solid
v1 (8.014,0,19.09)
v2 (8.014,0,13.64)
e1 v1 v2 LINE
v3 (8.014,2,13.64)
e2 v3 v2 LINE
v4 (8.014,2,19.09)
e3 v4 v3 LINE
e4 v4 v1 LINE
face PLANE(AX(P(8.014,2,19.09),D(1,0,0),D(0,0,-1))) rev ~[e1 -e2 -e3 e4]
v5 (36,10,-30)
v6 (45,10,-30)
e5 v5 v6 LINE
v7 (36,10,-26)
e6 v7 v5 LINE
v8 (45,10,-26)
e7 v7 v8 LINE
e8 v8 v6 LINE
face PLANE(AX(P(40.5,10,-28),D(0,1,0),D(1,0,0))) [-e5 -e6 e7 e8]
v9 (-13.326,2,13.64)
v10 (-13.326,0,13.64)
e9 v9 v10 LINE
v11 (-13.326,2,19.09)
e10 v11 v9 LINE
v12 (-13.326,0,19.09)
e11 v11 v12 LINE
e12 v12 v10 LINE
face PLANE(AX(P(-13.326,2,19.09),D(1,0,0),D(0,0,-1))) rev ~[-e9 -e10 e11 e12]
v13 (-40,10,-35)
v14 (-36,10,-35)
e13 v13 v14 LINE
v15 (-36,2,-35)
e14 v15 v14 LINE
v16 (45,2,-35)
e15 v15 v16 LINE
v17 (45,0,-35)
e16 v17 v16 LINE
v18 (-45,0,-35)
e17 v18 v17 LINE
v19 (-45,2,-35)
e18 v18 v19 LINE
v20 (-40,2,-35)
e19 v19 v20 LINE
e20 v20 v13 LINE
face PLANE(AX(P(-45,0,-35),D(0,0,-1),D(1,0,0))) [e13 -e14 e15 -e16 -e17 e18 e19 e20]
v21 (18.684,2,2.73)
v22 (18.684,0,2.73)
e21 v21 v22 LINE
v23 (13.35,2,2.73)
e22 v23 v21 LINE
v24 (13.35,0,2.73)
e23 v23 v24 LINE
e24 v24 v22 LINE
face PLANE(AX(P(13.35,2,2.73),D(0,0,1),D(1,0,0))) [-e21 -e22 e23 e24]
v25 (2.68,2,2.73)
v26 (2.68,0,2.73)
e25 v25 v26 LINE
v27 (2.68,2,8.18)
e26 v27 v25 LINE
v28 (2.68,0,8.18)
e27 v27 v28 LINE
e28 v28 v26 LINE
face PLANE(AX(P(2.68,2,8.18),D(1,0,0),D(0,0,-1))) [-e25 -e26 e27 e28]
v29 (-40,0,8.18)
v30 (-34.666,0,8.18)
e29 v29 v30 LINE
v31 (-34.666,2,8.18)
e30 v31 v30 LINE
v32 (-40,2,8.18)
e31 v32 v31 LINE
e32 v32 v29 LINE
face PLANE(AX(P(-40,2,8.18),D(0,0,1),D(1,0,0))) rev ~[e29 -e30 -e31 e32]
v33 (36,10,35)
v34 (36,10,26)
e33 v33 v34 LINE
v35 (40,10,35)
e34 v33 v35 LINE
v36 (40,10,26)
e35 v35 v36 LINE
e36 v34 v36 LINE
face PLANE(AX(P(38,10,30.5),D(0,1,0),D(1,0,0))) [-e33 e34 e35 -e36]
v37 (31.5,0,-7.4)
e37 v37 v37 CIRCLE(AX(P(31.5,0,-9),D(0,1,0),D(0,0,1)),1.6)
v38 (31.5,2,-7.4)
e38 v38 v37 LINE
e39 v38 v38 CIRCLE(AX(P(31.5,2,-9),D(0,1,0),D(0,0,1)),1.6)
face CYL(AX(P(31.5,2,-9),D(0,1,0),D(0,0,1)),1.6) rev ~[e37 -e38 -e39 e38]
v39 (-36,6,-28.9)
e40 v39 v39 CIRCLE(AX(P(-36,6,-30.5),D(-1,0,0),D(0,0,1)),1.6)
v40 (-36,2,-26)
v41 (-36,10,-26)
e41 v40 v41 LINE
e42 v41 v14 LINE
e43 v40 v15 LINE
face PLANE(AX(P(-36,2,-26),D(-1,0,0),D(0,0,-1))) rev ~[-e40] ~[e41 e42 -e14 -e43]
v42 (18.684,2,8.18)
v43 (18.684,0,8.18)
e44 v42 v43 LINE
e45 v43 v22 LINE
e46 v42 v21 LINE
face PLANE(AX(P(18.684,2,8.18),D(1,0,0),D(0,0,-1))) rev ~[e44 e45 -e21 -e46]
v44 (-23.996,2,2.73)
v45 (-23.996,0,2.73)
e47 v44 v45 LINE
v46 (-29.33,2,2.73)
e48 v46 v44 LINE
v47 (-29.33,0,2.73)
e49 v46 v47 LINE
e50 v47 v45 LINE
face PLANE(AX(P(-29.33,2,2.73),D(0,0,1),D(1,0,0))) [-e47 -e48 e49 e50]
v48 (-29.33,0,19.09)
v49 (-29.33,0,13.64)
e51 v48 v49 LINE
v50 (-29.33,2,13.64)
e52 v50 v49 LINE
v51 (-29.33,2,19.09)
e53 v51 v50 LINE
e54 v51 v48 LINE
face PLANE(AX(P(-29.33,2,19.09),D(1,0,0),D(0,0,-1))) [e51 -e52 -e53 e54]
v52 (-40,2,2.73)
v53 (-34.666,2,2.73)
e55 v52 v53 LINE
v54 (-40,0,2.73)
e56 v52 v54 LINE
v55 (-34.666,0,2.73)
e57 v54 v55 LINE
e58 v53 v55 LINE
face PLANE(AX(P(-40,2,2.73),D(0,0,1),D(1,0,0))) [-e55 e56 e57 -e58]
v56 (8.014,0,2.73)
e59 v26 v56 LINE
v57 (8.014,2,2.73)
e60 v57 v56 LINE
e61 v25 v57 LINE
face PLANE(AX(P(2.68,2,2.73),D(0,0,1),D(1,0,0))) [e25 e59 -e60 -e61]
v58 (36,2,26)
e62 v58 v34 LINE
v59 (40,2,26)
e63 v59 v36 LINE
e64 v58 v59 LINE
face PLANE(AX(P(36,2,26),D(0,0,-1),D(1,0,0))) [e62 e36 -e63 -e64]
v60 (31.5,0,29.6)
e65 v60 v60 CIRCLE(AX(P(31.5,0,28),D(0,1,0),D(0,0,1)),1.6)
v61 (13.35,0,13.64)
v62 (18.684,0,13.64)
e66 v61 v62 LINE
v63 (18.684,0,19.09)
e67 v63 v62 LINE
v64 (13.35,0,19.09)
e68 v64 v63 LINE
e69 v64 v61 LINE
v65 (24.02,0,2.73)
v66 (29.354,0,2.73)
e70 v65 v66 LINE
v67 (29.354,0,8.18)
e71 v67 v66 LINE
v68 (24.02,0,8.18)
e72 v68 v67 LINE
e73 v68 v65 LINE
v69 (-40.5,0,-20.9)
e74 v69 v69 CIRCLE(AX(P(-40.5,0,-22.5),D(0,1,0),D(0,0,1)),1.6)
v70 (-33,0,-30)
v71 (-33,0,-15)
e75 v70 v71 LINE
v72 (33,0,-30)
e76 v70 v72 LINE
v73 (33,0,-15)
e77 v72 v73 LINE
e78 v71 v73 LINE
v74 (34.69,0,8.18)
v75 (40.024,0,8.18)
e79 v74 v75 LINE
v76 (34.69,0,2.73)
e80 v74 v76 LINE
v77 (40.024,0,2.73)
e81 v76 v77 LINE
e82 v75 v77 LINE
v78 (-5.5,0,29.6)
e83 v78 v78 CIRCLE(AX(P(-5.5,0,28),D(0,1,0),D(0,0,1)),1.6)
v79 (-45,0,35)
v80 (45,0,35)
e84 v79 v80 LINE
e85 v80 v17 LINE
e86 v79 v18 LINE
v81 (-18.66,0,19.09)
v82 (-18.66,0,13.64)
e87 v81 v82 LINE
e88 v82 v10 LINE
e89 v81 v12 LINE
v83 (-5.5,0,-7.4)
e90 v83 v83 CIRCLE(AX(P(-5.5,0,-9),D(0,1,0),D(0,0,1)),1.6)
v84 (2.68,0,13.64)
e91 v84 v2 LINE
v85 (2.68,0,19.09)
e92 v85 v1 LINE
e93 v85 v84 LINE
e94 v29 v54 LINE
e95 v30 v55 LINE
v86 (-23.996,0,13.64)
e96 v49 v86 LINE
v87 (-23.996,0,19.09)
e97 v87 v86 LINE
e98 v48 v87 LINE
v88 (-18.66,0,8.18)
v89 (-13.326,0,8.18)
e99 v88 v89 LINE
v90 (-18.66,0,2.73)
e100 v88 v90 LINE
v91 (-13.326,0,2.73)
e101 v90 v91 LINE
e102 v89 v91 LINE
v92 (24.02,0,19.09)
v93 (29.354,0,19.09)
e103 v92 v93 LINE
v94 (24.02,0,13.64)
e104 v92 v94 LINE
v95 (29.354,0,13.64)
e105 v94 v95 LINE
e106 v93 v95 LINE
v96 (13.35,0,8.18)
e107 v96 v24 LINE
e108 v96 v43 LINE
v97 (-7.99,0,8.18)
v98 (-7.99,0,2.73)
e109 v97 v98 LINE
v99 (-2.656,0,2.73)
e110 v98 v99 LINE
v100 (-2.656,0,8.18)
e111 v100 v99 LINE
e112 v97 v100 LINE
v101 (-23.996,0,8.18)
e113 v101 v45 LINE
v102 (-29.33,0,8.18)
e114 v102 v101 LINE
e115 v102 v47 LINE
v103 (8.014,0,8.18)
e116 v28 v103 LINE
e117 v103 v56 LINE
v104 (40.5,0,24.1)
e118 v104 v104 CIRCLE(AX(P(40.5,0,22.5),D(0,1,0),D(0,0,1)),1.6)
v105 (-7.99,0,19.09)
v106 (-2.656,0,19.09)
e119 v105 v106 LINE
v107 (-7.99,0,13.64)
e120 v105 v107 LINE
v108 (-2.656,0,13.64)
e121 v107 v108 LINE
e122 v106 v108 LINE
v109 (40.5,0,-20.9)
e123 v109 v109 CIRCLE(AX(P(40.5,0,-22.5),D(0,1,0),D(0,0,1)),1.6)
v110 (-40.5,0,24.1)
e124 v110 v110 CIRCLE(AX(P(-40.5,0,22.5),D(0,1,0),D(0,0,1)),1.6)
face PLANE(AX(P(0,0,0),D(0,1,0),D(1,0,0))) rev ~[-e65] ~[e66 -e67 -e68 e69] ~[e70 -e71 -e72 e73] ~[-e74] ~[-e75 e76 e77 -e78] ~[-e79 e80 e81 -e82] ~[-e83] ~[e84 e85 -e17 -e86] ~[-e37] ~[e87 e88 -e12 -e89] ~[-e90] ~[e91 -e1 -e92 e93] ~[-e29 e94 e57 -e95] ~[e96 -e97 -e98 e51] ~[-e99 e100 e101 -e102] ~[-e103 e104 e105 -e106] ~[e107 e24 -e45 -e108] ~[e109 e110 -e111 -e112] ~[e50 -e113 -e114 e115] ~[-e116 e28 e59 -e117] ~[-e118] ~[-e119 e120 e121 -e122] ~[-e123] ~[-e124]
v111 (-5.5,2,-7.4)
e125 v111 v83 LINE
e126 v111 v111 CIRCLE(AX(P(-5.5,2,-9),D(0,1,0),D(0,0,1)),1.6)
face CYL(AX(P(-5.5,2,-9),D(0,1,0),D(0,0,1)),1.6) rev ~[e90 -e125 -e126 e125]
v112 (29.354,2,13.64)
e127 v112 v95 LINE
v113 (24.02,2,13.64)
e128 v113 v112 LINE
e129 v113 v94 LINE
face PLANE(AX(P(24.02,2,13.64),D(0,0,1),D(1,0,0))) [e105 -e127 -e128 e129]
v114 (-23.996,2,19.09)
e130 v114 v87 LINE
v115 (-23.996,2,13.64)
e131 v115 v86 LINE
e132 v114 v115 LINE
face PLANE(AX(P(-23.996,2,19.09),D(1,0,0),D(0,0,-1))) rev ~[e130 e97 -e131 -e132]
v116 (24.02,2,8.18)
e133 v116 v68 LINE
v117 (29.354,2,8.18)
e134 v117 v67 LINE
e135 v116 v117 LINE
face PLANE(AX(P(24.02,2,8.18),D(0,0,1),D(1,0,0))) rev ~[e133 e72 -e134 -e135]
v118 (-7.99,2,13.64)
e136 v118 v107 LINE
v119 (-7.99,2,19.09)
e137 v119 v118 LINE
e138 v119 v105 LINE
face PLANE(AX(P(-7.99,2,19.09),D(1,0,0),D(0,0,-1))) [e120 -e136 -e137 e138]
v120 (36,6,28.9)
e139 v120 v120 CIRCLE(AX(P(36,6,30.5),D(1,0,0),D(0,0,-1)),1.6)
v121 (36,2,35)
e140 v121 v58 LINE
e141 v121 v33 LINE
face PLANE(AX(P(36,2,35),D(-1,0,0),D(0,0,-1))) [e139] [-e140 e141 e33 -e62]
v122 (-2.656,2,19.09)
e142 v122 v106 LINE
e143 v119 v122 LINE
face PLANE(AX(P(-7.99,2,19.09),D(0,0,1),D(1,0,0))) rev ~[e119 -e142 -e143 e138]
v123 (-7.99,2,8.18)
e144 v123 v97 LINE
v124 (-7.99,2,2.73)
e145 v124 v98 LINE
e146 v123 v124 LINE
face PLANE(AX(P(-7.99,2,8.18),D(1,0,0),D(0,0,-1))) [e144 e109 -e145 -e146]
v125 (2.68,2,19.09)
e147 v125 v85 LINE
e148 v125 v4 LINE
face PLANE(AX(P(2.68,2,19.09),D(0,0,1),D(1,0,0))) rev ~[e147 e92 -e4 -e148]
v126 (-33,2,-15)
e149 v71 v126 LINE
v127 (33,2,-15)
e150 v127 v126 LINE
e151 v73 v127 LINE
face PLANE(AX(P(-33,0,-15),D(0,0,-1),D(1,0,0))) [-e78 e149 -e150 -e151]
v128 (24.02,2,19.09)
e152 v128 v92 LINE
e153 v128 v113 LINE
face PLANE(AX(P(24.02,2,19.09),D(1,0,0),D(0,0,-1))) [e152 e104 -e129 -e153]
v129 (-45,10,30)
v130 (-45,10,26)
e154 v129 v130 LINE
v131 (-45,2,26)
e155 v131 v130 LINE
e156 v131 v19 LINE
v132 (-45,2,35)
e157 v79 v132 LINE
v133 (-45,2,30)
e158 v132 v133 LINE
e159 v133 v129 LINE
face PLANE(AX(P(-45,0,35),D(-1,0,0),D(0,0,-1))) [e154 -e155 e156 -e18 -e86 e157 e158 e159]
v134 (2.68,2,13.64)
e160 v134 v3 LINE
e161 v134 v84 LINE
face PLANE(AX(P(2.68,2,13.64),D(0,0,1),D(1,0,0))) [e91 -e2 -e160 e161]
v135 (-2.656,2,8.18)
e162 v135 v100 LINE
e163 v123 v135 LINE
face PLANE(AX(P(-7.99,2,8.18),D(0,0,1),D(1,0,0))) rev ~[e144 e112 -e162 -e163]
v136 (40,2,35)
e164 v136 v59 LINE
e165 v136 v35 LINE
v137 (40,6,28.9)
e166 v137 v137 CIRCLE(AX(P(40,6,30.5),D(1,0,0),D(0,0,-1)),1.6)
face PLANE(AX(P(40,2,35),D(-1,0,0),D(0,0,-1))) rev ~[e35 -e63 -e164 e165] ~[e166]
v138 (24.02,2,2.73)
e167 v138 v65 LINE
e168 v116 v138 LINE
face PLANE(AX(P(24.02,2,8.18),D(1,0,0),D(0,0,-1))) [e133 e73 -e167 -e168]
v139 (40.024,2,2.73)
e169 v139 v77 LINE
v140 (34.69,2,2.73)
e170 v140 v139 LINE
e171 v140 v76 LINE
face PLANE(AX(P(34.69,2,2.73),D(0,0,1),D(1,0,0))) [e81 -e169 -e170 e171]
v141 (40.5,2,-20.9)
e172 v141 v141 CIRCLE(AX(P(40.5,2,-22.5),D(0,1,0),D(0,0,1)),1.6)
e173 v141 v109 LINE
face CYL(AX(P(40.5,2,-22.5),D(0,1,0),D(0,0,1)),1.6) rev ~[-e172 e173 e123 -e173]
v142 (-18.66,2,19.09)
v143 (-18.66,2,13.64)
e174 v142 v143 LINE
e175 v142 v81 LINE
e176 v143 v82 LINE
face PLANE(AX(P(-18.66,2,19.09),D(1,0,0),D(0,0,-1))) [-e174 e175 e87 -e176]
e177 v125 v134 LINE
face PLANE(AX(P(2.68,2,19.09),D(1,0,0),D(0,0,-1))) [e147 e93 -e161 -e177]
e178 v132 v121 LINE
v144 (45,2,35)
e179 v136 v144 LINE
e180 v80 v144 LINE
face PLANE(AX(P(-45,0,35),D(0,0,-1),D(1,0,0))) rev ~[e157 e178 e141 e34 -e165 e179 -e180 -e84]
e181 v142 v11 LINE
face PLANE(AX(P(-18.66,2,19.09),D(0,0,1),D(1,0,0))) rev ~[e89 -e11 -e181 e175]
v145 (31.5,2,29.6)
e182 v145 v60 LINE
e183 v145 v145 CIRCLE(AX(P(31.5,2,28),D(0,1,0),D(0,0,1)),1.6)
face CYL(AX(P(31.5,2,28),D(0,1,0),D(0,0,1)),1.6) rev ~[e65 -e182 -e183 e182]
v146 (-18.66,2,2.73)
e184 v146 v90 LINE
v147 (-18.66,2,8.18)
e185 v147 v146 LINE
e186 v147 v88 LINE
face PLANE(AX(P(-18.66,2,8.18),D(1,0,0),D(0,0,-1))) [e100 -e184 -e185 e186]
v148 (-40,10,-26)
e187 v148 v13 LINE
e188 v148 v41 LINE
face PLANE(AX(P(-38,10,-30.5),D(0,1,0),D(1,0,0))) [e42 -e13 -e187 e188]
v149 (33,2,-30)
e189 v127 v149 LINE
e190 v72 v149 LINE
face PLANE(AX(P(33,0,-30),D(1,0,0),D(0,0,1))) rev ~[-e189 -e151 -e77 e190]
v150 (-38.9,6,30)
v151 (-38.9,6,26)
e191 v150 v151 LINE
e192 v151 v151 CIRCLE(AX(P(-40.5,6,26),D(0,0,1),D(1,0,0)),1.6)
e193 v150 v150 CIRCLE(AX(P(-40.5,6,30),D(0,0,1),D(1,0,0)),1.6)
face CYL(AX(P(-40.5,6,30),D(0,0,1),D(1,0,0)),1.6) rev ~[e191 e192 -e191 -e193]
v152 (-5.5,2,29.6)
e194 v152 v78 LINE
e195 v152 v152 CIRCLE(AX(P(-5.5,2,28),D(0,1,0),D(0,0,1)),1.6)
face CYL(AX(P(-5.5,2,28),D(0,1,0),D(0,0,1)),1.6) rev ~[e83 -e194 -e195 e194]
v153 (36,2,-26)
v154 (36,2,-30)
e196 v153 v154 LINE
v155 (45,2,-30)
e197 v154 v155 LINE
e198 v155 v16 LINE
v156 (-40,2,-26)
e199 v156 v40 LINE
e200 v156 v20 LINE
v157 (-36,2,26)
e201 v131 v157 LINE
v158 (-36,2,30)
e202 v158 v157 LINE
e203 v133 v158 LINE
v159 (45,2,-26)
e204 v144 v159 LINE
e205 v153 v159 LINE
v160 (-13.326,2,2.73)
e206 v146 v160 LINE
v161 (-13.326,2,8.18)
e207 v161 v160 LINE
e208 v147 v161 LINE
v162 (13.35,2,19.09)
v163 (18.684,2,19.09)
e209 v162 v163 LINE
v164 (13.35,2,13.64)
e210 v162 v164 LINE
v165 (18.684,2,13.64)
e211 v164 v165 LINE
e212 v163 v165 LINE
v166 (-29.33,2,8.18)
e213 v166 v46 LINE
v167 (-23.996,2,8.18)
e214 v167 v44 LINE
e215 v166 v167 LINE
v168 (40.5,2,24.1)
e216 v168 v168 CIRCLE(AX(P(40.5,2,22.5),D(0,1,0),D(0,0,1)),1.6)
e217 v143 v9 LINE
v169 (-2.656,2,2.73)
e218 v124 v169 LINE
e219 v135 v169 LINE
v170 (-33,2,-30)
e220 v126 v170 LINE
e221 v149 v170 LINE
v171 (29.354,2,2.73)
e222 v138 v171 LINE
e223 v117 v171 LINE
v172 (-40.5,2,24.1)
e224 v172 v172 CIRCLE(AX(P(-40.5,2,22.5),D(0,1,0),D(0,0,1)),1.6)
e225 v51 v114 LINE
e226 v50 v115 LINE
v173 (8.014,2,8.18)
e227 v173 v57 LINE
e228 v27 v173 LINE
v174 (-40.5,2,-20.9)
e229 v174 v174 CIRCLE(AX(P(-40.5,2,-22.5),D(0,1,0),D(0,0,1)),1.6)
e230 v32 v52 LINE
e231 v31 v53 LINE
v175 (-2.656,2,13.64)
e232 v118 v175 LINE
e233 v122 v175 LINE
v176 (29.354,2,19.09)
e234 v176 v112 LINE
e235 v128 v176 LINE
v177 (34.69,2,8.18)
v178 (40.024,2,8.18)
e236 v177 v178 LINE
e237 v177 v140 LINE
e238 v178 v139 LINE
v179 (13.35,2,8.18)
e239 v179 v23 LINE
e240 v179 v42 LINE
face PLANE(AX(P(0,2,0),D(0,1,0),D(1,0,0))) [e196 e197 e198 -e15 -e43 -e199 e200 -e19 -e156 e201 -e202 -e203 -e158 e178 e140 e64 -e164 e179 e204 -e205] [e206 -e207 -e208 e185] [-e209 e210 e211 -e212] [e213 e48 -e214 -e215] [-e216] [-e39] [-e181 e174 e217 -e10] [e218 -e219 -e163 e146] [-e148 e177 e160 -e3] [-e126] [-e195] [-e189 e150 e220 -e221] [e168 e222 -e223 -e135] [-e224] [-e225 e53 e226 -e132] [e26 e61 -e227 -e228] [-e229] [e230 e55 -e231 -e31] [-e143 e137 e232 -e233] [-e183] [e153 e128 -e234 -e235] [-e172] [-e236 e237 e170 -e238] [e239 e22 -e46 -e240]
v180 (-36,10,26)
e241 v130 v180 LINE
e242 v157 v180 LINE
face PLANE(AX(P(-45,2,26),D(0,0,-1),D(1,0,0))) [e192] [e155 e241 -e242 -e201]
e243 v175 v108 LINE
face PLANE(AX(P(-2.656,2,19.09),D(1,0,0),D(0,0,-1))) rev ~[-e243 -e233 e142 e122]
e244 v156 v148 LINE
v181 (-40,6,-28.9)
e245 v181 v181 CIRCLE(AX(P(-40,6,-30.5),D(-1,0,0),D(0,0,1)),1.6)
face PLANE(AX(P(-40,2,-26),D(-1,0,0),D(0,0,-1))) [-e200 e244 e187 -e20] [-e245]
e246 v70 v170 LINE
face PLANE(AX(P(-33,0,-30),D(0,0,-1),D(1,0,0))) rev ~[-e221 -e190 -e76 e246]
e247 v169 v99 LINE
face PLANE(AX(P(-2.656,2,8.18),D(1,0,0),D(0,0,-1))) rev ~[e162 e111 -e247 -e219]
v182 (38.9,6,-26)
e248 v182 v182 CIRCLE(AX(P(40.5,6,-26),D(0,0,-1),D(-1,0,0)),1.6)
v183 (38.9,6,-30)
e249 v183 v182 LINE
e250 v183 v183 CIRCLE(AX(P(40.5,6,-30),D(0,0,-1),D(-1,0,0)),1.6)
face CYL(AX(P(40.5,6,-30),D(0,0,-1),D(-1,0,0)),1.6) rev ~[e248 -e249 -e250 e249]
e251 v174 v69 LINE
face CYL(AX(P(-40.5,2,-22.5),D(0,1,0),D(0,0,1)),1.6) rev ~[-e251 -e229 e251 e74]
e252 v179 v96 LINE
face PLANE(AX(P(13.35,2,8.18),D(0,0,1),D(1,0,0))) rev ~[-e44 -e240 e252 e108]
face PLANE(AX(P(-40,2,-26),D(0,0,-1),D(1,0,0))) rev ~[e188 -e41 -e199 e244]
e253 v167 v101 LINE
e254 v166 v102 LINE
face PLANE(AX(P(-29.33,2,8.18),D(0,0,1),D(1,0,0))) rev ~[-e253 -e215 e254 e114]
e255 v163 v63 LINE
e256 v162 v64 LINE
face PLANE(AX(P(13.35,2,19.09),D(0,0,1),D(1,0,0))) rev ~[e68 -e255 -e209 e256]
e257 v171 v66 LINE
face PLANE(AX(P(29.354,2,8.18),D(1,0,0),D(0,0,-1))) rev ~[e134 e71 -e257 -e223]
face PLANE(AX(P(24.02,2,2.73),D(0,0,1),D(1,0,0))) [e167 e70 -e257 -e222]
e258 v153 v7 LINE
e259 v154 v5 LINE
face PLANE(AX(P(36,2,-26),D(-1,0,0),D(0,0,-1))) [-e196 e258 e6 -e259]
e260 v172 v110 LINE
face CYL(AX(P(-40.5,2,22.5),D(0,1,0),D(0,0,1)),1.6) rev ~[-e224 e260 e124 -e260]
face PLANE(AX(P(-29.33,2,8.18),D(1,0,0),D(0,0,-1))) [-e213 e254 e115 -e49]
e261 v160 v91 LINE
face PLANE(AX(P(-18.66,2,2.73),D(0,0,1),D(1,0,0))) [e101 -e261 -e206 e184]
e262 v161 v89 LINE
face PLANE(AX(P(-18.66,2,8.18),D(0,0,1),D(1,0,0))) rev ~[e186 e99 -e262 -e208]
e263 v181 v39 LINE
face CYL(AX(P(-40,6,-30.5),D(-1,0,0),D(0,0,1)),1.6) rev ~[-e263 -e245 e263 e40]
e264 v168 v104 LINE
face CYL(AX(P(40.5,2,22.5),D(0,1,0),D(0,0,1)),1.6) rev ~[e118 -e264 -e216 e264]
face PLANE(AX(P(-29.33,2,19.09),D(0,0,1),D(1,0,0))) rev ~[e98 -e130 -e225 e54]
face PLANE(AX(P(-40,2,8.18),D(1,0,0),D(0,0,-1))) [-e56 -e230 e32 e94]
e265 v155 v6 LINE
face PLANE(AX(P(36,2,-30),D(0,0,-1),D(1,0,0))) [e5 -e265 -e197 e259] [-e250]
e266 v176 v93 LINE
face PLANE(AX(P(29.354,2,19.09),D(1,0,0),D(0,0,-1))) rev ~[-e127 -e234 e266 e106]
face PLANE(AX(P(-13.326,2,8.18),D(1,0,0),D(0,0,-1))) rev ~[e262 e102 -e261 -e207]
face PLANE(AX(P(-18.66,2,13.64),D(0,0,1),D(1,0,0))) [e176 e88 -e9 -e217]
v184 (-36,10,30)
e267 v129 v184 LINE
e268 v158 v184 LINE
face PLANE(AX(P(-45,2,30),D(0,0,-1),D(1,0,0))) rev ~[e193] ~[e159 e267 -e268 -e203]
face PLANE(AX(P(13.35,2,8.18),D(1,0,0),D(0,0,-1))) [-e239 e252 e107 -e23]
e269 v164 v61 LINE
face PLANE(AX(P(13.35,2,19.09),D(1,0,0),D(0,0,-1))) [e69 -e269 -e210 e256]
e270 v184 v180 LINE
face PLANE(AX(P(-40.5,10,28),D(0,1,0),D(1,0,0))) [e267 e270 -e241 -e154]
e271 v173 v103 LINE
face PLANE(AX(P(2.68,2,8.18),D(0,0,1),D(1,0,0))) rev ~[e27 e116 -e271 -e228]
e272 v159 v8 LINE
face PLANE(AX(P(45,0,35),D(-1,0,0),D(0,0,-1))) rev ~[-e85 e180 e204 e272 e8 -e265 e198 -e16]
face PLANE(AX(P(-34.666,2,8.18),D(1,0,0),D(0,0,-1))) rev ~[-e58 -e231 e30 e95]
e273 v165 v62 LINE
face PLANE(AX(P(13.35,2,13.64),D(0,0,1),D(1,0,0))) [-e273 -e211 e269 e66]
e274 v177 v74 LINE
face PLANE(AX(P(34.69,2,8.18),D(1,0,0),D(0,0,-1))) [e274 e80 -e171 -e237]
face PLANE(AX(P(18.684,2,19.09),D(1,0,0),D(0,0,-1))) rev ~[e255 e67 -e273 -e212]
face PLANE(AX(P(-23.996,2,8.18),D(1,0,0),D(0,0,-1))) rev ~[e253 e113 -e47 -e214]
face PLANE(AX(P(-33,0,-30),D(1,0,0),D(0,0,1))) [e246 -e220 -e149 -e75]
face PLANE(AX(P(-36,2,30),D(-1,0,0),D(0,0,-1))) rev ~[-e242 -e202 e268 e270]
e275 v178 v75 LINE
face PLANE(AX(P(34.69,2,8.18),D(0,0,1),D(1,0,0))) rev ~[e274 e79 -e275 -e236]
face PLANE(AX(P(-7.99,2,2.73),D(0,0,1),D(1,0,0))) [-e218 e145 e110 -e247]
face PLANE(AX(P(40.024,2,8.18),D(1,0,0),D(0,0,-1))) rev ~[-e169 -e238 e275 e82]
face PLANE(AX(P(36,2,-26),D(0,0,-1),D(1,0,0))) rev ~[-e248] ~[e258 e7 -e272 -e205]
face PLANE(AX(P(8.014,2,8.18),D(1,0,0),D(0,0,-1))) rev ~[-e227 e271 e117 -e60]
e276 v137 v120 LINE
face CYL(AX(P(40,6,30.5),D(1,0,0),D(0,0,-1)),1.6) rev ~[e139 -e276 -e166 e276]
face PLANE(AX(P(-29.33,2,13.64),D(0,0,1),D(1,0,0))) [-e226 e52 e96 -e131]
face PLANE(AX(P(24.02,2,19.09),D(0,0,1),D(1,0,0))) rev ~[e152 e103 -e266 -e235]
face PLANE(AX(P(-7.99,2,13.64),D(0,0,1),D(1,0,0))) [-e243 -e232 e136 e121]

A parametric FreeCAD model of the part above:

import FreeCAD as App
import Part
import Sketcher

V = App.Vector
Q = App.Units.Quantity

doc = App.newDocument("Part")
body = doc.addObject("PartDesign::Body", "Body")

# Sketch on XZ plane
sketch1 = doc.addObject("Sketcher::SketchObject", "Sketch")
body.addObject(sketch1)
sketch1.AttachmentSupport = (doc.XZ_Plane, [""])
sketch1.MapMode = "FlatFace"
sketch1.addGeometry(Part.LineSegment(V(-45, -35, 0), V(-45, 35, 0)), False)
sketch1.addGeometry(Part.LineSegment(V(-45, 35, 0), V(45, 35, 0)), False)
sketch1.addGeometry(Part.LineSegment(V(45, 35, 0), V(45, -35, 0)), False)
sketch1.addGeometry(Part.LineSegment(V(45, -35, 0), V(-45, -35, 0)), False)
sketch1.addConstraint(Sketcher.Constraint("Coincident", 0, 2, 1, 1))
sketch1.addConstraint(Sketcher.Constraint("Coincident", 1, 2, 2, 1))
sketch1.addConstraint(Sketcher.Constraint("Coincident", 2, 2, 3, 1))
sketch1.addConstraint(Sketcher.Constraint("Coincident", 3, 2, 0, 1))
sketch1.addConstraint(Sketcher.Constraint("Vertical", 0))
sketch1.addConstraint(Sketcher.Constraint("Horizontal", 1))
sketch1.addConstraint(Sketcher.Constraint("Vertical", 2))
sketch1.addConstraint(Sketcher.Constraint("Horizontal", 3))
sketch1.addConstraint(Sketcher.Constraint("Symmetric", 0, 2, 2, 2, -1, 1))
sketch1.addConstraint(Sketcher.Constraint("DistanceX", 1, 1, 1, 2, Q("90 mm")))
sketch1.addConstraint(Sketcher.Constraint("DistanceY", 0, 1, 0, 2, Q("70 mm")))
pad1 = doc.addObject("PartDesign::Pad", "Pad")
body.addObject(pad1)
pad1.Profile = sketch1
pad1.Length = 2
pad1.Reversed = True

# Sketch on XZ plane
sketch2 = doc.addObject("Sketcher::SketchObject", "Sketch001")
body.addObject(sketch2)
sketch2.AttachmentSupport = (doc.XZ_Plane, [""])
sketch2.MapMode = "FlatFace"
sketch2.AttachmentOffset = App.Placement(V(0, 0, -2), App.Rotation())
sketch2.addGeometry(Part.LineSegment(V(-40, -35, 0), V(-40, -26, 0)), False)
sketch2.addGeometry(Part.LineSegment(V(-40, -26, 0), V(-36, -26, 0)), False)
sketch2.addGeometry(Part.LineSegment(V(-36, -26, 0), V(-36, -35, 0)), False)
sketch2.addGeometry(Part.LineSegment(V(-36, -35, 0), V(-40, -35, 0)), False)
sketch2.addGeometry(Part.LineSegment(V(36, -30, 0), V(36, -26, 0)), False)
sketch2.addGeometry(Part.LineSegment(V(36, -26, 0), V(45, -26, 0)), False)
sketch2.addGeometry(Part.LineSegment(V(45, -26, 0), V(45, -30, 0)), False)
sketch2.addGeometry(Part.LineSegment(V(45, -30, 0), V(36, -30, 0)), False)
sketch2.addGeometry(Part.LineSegment(V(36, 26, 0), V(36, 35, 0)), False)
sketch2.addGeometry(Part.LineSegment(V(36, 35, 0), V(40, 35, 0)), False)
sketch2.addGeometry(Part.LineSegment(V(40, 35, 0), V(40, 26, 0)), False)
sketch2.addGeometry(Part.LineSegment(V(40, 26, 0), V(36, 26, 0)), False)
sketch2.addGeometry(Part.LineSegment(V(-45, 26, 0), V(-45, 30, 0)), False)
sketch2.addGeometry(Part.LineSegment(V(-45, 30, 0), V(-36, 30, 0)), False)
sketch2.addGeometry(Part.LineSegment(V(-36, 30, 0), V(-36, 26, 0)), False)
sketch2.addGeometry(Part.LineSegment(V(-36, 26, 0), V(-45, 26, 0)), False)
sketch2.addConstraint(Sketcher.Constraint("Coincident", 0, 2, 1, 1))
sketch2.addConstraint(Sketcher.Constraint("Coincident", 1, 2, 2, 1))
sketch2.addConstraint(Sketcher.Constraint("Coincident", 2, 2, 3, 1))
sketch2.addConstraint(Sketcher.Constraint("Coincident", 3, 2, 0, 1))
sketch2.addConstraint(Sketcher.Constraint("Coincident", 4, 2, 5, 1))
sketch2.addConstraint(Sketcher.Constraint("Coincident", 5, 2, 6, 1))
sketch2.addConstraint(Sketcher.Constraint("Coincident", 6, 2, 7, 1))
sketch2.addConstraint(Sketcher.Constraint("Coincident", 7, 2, 4, 1))
sketch2.addConstraint(Sketcher.Constraint("Coincident", 8, 2, 9, 1))
sketch2.addConstraint(Sketcher.Constraint("Coincident", 9, 2, 10, 1))
sketch2.addConstraint(Sketcher.Constraint("Coincident", 10, 2, 11, 1))
sketch2.addConstraint(Sketcher.Constraint("Coincident", 11, 2, 8, 1))
sketch2.addConstraint(Sketcher.Constraint("Coincident", 12, 2, 13, 1))
sketch2.addConstraint(Sketcher.Constraint("Coincident", 13, 2, 14, 1))
sketch2.addConstraint(Sketcher.Constraint("Coincident", 14, 2, 15, 1))
sketch2.addConstraint(Sketcher.Constraint("Coincident", 15, 2, 12, 1))
sketch2.addConstraint(Sketcher.Constraint("Vertical", 0))
sketch2.addConstraint(Sketcher.Constraint("Horizontal", 1))
sketch2.addConstraint(Sketcher.Constraint("Vertical", 2))
sketch2.addConstraint(Sketcher.Constraint("Horizontal", 3))
sketch2.addConstraint(Sketcher.Constraint("Vertical", 4))
sketch2.addConstraint(Sketcher.Constraint("Horizontal", 5))
sketch2.addConstraint(Sketcher.Constraint("Vertical", 6))
sketch2.addConstraint(Sketcher.Constraint("Horizontal", 7))
sketch2.addConstraint(Sketcher.Constraint("Vertical", 8))
sketch2.addConstraint(Sketcher.Constraint("Horizontal", 9))
sketch2.addConstraint(Sketcher.Constraint("Vertical", 10))
sketch2.addConstraint(Sketcher.Constraint("Horizontal", 11))
sketch2.addConstraint(Sketcher.Constraint("Vertical", 12))
sketch2.addConstraint(Sketcher.Constraint("Horizontal", 13))
sketch2.addConstraint(Sketcher.Constraint("Vertical", 14))
sketch2.addConstraint(Sketcher.Constraint("Horizontal", 15))
sketch2.addConstraint(Sketcher.Constraint("Symmetric", 2, 2, 8, 2, -1, 1))
sketch2.addConstraint(Sketcher.Constraint("Symmetric", 0, 2, 10, 2, -1, 1))
sketch2.addConstraint(Sketcher.Constraint("Symmetric", 6, 2, 12, 2, -1, 1))
sketch2.addConstraint(Sketcher.Constraint("Symmetric", 4, 2, 14, 2, -1, 1))
sketch2.addConstraint(Sketcher.Constraint("Symmetric", 1, 2, 4, 2, -2))
sketch2.addConstraint(Sketcher.Constraint("Equal", 15, 0))
sketch2.addConstraint(Sketcher.Constraint("Equal", 11, 4))
sketch2.addConstraint(Sketcher.Constraint("DistanceX", 1, 1, 1, 2, Q("4 mm")))
sketch2.addConstraint(Sketcher.Constraint("DistanceX", 5, 1, 5, 2, Q("9 mm")))
sketch2.addConstraint(Sketcher.Constraint("DistanceX", 0, 2, -1, 1, Q("40 mm")))
sketch2.addConstraint(Sketcher.Constraint("DistanceY", 0, 2, -1, 1, Q("26 mm")))
pad2 = doc.addObject("PartDesign::Pad", "Pad001")
body.addObject(pad2)
pad2.Profile = sketch2
pad2.Length = 8
pad2.Reversed = True

# Sketch on XZ plane
sketch3 = doc.addObject("Sketcher::SketchObject", "Sketch002")
body.addObject(sketch3)
sketch3.AttachmentSupport = (doc.XZ_Plane, [""])
sketch3.MapMode = "FlatFace"
sketch3.addGeometry(Part.LineSegment(V(-33, -15, 0), V(-33, -30, 0)), False)
sketch3.addGeometry(Part.LineSegment(V(-33, -30, 0), V(33, -30, 0)), False)
sketch3.addGeometry(Part.LineSegment(V(33, -30, 0), V(33, -15, 0)), False)
sketch3.addGeometry(Part.LineSegment(V(33, -15, 0), V(-33, -15, 0)), False)
sketch3.addConstraint(Sketcher.Constraint("Coincident", 0, 2, 1, 1))
sketch3.addConstraint(Sketcher.Constraint("Coincident", 1, 2, 2, 1))
sketch3.addConstraint(Sketcher.Constraint("Coincident", 2, 2, 3, 1))
sketch3.addConstraint(Sketcher.Constraint("Coincident", 3, 2, 0, 1))
sketch3.addConstraint(Sketcher.Constraint("Vertical", 0))
sketch3.addConstraint(Sketcher.Constraint("Horizontal", 1))
sketch3.addConstraint(Sketcher.Constraint("Vertical", 2))
sketch3.addConstraint(Sketcher.Constraint("Horizontal", 3))
sketch3.addConstraint(Sketcher.Constraint("DistanceX", 1, 1, 1, 2, Q("66 mm")))
sketch3.addConstraint(Sketcher.Constraint("DistanceY", 0, 2, 0, 1, Q("15 mm")))
sketch3.addConstraint(Sketcher.Constraint("DistanceX", 0, 2, -1, 1, Q("33 mm")))
sketch3.addConstraint(Sketcher.Constraint("DistanceY", 0, 2, -1, 1, Q("30 mm")))
pocket1 = doc.addObject("PartDesign::Pocket", "Pocket")
body.addObject(pocket1)
pocket1.Profile = sketch3
pocket1.Length = 3

# Sketch on XZ plane
sketch4 = doc.addObject("Sketcher::SketchObject", "Sketch003")
body.addObject(sketch4)
sketch4.AttachmentSupport = (doc.XZ_Plane, [""])
sketch4.MapMode = "FlatFace"
sketch4.AttachmentOffset = App.Placement(V(0, 0, -2), App.Rotation())
sketch4.addGeometry(Part.Circle(V(31.5, -9, 0), V(0, 0, 1), 1.6), False)
sketch4.addGeometry(Part.Circle(V(-5.5, -9, 0), V(0, 0, 1), 1.6), False)
sketch4.addGeometry(Part.Circle(V(-5.5, 28, 0), V(0, 0, 1), 1.6), False)
sketch4.addGeometry(Part.Circle(V(31.5, 28, 0), V(0, 0, 1), 1.6), False)
sketch4.addConstraint(Sketcher.Constraint("Equal", 0, 1))
sketch4.addConstraint(Sketcher.Constraint("Equal", 1, 2))
sketch4.addConstraint(Sketcher.Constraint("Equal", 2, 3))
sketch4.addConstraint(Sketcher.Constraint("Horizontal", 0, 3, 1, 3))
sketch4.addConstraint(Sketcher.Constraint("Horizontal", 2, 3, 3, 3))
sketch4.addConstraint(Sketcher.Constraint("Vertical", 1, 3, 2, 3))
sketch4.addConstraint(Sketcher.Constraint("Vertical", 0, 3, 3, 3))
sketch4.addConstraint(Sketcher.Constraint("Diameter", 0, Q("3.2 mm")))
sketch4.addConstraint(Sketcher.Constraint("DistanceY", 0, 3, -1, 1, Q("9 mm")))
sketch4.addConstraint(Sketcher.Constraint("DistanceY", -1, 1, 2, 3, Q("28 mm")))
sketch4.addConstraint(Sketcher.Constraint("DistanceX", 1, 3, 0, 3, Q("37 mm")))
sketch4.addConstraint(Sketcher.Constraint("DistanceX", -1, 1, 0, 3, Q("31.5 mm")))
pocket2 = doc.addObject("PartDesign::Pocket", "Pocket001")
body.addObject(pocket2)
pocket2.Profile = sketch4
pocket2.Length = 3
pocket2.Reversed = True

# Sketch on XY plane
sketch5 = doc.addObject("Sketcher::SketchObject", "Sketch004")
body.addObject(sketch5)
sketch5.AttachmentSupport = (doc.XY_Plane, [""])
sketch5.MapMode = "FlatFace"
sketch5.AttachmentOffset = App.Placement(V(0, 0, -30), App.Rotation())
sketch5.addGeometry(Part.Circle(V(40.5, 6, 0), V(0, 0, 1), 1.6), False)
sketch5.addConstraint(Sketcher.Constraint("Diameter", 0, Q("3.2 mm")))
sketch5.addConstraint(Sketcher.Constraint("DistanceY", -1, 1, 0, 3, Q("6 mm")))
sketch5.addConstraint(Sketcher.Constraint("DistanceX", -1, 1, 0, 3, Q("40.5 mm")))
pocket3 = doc.addObject("PartDesign::Pocket", "Pocket002")
body.addObject(pocket3)
pocket3.Profile = sketch5
pocket3.Length = 5
pocket3.Reversed = True

# Sketch on YZ plane
sketch6 = doc.addObject("Sketcher::SketchObject", "Sketch005")
body.addObject(sketch6)
sketch6.AttachmentSupport = (doc.YZ_Plane, [""])
sketch6.MapMode = "FlatFace"
sketch6.AttachmentOffset = App.Placement(V(0, 0, -40), App.Rotation())
sketch6.addGeometry(Part.Circle(V(6, -30.5, 0), V(0, 0, 1), 1.6), False)
sketch6.addConstraint(Sketcher.Constraint("Diameter", 0, Q("3.2 mm")))
sketch6.addConstraint(Sketcher.Constraint("DistanceX", -1, 1, 0, 3, Q("6 mm")))
sketch6.addConstraint(Sketcher.Constraint("DistanceY", 0, 3, -1, 1, Q("30.5 mm")))
pocket4 = doc.addObject("PartDesign::Pocket", "Pocket003")
body.addObject(pocket4)
pocket4.Profile = sketch6
pocket4.Length = 5
pocket4.Reversed = True

# Sketch on XY plane
sketch7 = doc.addObject("Sketcher::SketchObject", "Sketch006")
body.addObject(sketch7)
sketch7.AttachmentSupport = (doc.XY_Plane, [""])
sketch7.MapMode = "FlatFace"
sketch7.AttachmentOffset = App.Placement(V(0, 0, 30), App.Rotation())
sketch7.addGeometry(Part.Circle(V(-40.5, 6, 0), V(0, 0, 1), 1.6), False)
sketch7.addConstraint(Sketcher.Constraint("Diameter", 0, Q("3.2 mm")))
sketch7.addConstraint(Sketcher.Constraint("DistanceY", -1, 1, 0, 3, Q("6 mm")))
sketch7.addConstraint(Sketcher.Constraint("DistanceX", 0, 3, -1, 1, Q("40.5 mm")))
pocket5 = doc.addObject("PartDesign::Pocket", "Pocket004")
body.addObject(pocket5)
pocket5.Profile = sketch7
pocket5.Length = 5

# Sketch on YZ plane
sketch8 = doc.addObject("Sketcher::SketchObject", "Sketch007")
body.addObject(sketch8)
sketch8.AttachmentSupport = (doc.YZ_Plane, [""])
sketch8.MapMode = "FlatFace"
sketch8.AttachmentOffset = App.Placement(V(0, 0, 40), App.Rotation())
sketch8.addGeometry(Part.Circle(V(6, 30.5, 0), V(0, 0, 1), 1.6), False)
sketch8.addConstraint(Sketcher.Constraint("Diameter", 0, Q("3.2 mm")))
sketch8.addConstraint(Sketcher.Constraint("DistanceX", -1, 1, 0, 3, Q("6 mm")))
sketch8.addConstraint(Sketcher.Constraint("DistanceY", -1, 1, 0, 3, Q("30.5 mm")))
pocket6 = doc.addObject("PartDesign::Pocket", "Pocket005")
body.addObject(pocket6)
pocket6.Profile = sketch8
pocket6.Length = 5

# Sketch on XZ plane
sketch9 = doc.addObject("Sketcher::SketchObject", "Sketch008")
body.addObject(sketch9)
sketch9.AttachmentSupport = (doc.XZ_Plane, [""])
sketch9.MapMode = "FlatFace"
sketch9.AttachmentOffset = App.Placement(V(0, 0, -2), App.Rotation())
sketch9.addGeometry(Part.Circle(V(-40.5, -22.5, 0), V(0, 0, 1), 1.6), False)
sketch9.addGeometry(Part.Circle(V(-40.5, 22.5, 0), V(0, 0, 1), 1.6), False)
sketch9.addGeometry(Part.Circle(V(40.5, 22.5, 0), V(0, 0, 1), 1.6), False)
sketch9.addGeometry(Part.Circle(V(40.5, -22.5, 0), V(0, 0, 1), 1.6), False)
sketch9.addConstraint(Sketcher.Constraint("Equal", 0, 1))
sketch9.addConstraint(Sketcher.Constraint("Equal", 1, 2))
sketch9.addConstraint(Sketcher.Constraint("Equal", 2, 3))
sketch9.addConstraint(Sketcher.Constraint("Symmetric", 0, 3, 2, 3, -1, 1))
sketch9.addConstraint(Sketcher.Constraint("Symmetric", 1, 3, 3, 3, -1, 1))
sketch9.addConstraint(Sketcher.Constraint("Symmetric", 1, 3, 2, 3, -2))
sketch9.addConstraint(Sketcher.Constraint("Diameter", 0, Q("3.2 mm")))
sketch9.addConstraint(Sketcher.Constraint("DistanceY", 0, 3, 1, 3, Q("45 mm")))
sketch9.addConstraint(Sketcher.Constraint("DistanceX", 1, 3, 2, 3, Q("81 mm")))
pocket7 = doc.addObject("PartDesign::Pocket", "Pocket006")
body.addObject(pocket7)
pocket7.Profile = sketch9
pocket7.Type = "ThroughAll"
pocket7.Reversed = True

# Sketch on XZ plane
sketch10 = doc.addObject("Sketcher::SketchObject", "Sketch009")
body.addObject(sketch10)
sketch10.AttachmentSupport = (doc.XZ_Plane, [""])
sketch10.MapMode = "FlatFace"
sketch10.AttachmentOffset = App.Placement(V(0, 0, -2), App.Rotation())
sketch10.addGeometry(Part.LineSegment(V(-29, 3, 0), V(-29, 8, 0)), False)
sketch10.addGeometry(Part.LineSegment(V(-29, 8, 0), V(-24, 8, 0)), False)
sketch10.addGeometry(Part.LineSegment(V(-24, 8, 0), V(-24, 3, 0)), False)
sketch10.addGeometry(Part.LineSegment(V(-24, 3, 0), V(-29, 3, 0)), False)
sketch10.addGeometry(Part.LineSegment(V(-19, 3, 0), V(-19, 8, 0)), False)
sketch10.addGeometry(Part.LineSegment(V(-19, 8, 0), V(-13, 8, 0)), False)
sketch10.addGeometry(Part.LineSegment(V(-13, 8, 0), V(-13, 3, 0)), False)
sketch10.addGeometry(Part.LineSegment(V(-13, 3, 0), V(-19, 3, 0)), False)
sketch10.addGeometry(Part.LineSegment(V(-8, 3, 0), V(-8, 8, 0)), False)
sketch10.addGeometry(Part.LineSegment(V(-8, 8, 0), V(-3, 8, 0)), False)
sketch10.addGeometry(Part.LineSegment(V(-3, 8, 0), V(-3, 3, 0)), False)
sketch10.addGeometry(Part.LineSegment(V(-3, 3, 0), V(-8, 3, 0)), False)
sketch10.addGeometry(Part.LineSegment(V(3, 3, 0), V(3, 8, 0)), False)
sketch10.addGeometry(Part.LineSegment(V(3, 8, 0), V(8, 8, 0)), False)
sketch10.addGeometry(Part.LineSegment(V(8, 8, 0), V(8, 3, 0)), False)
sketch10.addGeometry(Part.LineSegment(V(8, 3, 0), V(3, 3, 0)), False)
sketch10.addGeometry(Part.LineSegment(V(13, 3, 0), V(13, 8, 0)), False)
sketch10.addGeometry(Part.LineSegment(V(13, 8, 0), V(19, 8, 0)), False)
sketch10.addGeometry(Part.LineSegment(V(19, 8, 0), V(19, 3, 0)), False)
sketch10.addGeometry(Part.LineSegment(V(19, 3, 0), V(13, 3, 0)), False)
sketch10.addGeometry(Part.LineSegment(V(24, 3, 0), V(24, 8, 0)), False)
sketch10.addGeometry(Part.LineSegment(V(24, 8, 0), V(29, 8, 0)), False)
sketch10.addGeometry(Part.LineSegment(V(29, 8, 0), V(29, 3, 0)), False)
sketch10.addGeometry(Part.LineSegment(V(29, 3, 0), V(24, 3, 0)), False)
sketch10.addGeometry(Part.LineSegment(V(35, 3, 0), V(35, 8, 0)), False)
sketch10.addGeometry(Part.LineSegment(V(35, 8, 0), V(40, 8, 0)), False)
sketch10.addGeometry(Part.LineSegment(V(40, 8, 0), V(40, 3, 0)), False)
sketch10.addGeometry(Part.LineSegment(V(40, 3, 0), V(35, 3, 0)), False)
sketch10.addGeometry(Part.LineSegment(V(-29, 14, 0), V(-29, 19, 0)), False)
sketch10.addGeometry(Part.LineSegment(V(-29, 19, 0), V(-24, 19, 0)), False)
sketch10.addGeometry(Part.LineSegment(V(-24, 19, 0), V(-24, 14, 0)), False)
sketch10.addGeometry(Part.LineSegment(V(-24, 14, 0), V(-29, 14, 0)), False)
sketch10.addGeometry(Part.LineSegment(V(-19, 14, 0), V(-19, 19, 0)), False)
sketch10.addGeometry(Part.LineSegment(V(-19, 19, 0), V(-13, 19, 0)), False)
sketch10.addGeometry(Part.LineSegment(V(-13, 19, 0), V(-13, 14, 0)), False)
sketch10.addGeometry(Part.LineSegment(V(-13, 14, 0), V(-19, 14, 0)), False)
sketch10.addGeometry(Part.LineSegment(V(-8, 14, 0), V(-8, 19, 0)), False)
sketch10.addGeometry(Part.LineSegment(V(-8, 19, 0), V(-3, 19, 0)), False)
sketch10.addGeometry(Part.LineSegment(V(-3, 19, 0), V(-3, 14, 0)), False)
sketch10.addGeometry(Part.LineSegment(V(-3, 14, 0), V(-8, 14, 0)), False)
sketch10.addGeometry(Part.LineSegment(V(3, 14, 0), V(3, 19, 0)), False)
sketch10.addGeometry(Part.LineSegment(V(3, 19, 0), V(8, 19, 0)), False)
sketch10.addGeometry(Part.LineSegment(V(8, 19, 0), V(8, 14, 0)), False)
sketch10.addGeometry(Part.LineSegment(V(8, 14, 0), V(3, 14, 0)), False)
sketch10.addGeometry(Part.LineSegment(V(13, 14, 0), V(13, 19, 0)), False)
sketch10.addGeometry(Part.LineSegment(V(13, 19, 0), V(19, 19, 0)), False)
sketch10.addGeometry(Part.LineSegment(V(19, 19, 0), V(19, 14, 0)), False)
sketch10.addGeometry(Part.LineSegment(V(19, 14, 0), V(13, 14, 0)), False)
sketch10.addGeometry(Part.LineSegment(V(24, 14, 0), V(24, 19, 0)), False)
sketch10.addGeometry(Part.LineSegment(V(24, 19, 0), V(29, 19, 0)), False)
sketch10.addGeometry(Part.LineSegment(V(29, 19, 0), V(29, 14, 0)), False)
sketch10.addGeometry(Part.LineSegment(V(29, 14, 0), V(24, 14, 0)), False)
sketch10.addGeometry(Part.LineSegment(V(-40, 3, 0), V(-40, 8, 0)), False)
sketch10.addGeometry(Part.LineSegment(V(-40, 8, 0), V(-35, 8, 0)), False)
sketch10.addGeometry(Part.LineSegment(V(-35, 8, 0), V(-35, 3, 0)), False)
sketch10.addGeometry(Part.LineSegment(V(-35, 3, 0), V(-40, 3, 0)), False)
sketch10.addConstraint(Sketcher.Constraint("Coincident", 0, 2, 1, 1))
sketch10.addConstraint(Sketcher.Constraint("Coincident", 1, 2, 2, 1))
sketch10.addConstraint(Sketcher.Constraint("Coincident", 2, 2, 3, 1))
sketch10.addConstraint(Sketcher.Constraint("Coincident", 3, 2, 0, 1))
sketch10.addConstraint(Sketcher.Constraint("Coincident", 4, 2, 5, 1))
sketch10.addConstraint(Sketcher.Constraint("Coincident", 5, 2, 6, 1))
sketch10.addConstraint(Sketcher.Constraint("Coincident", 6, 2, 7, 1))
sketch10.addConstraint(Sketcher.Constraint("Coincident", 7, 2, 4, 1))
sketch10.addConstraint(Sketcher.Constraint("Coincident", 8, 2, 9, 1))
sketch10.addConstraint(Sketcher.Constraint("Coincident", 9, 2, 10, 1))
sketch10.addConstraint(Sketcher.Constraint("Coincident", 10, 2, 11, 1))
sketch10.addConstraint(Sketcher.Constraint("Coincident", 11, 2, 8, 1))
sketch10.addConstraint(Sketcher.Constraint("Coincident", 12, 2, 13, 1))
sketch10.addConstraint(Sketcher.Constraint("Coincident", 13, 2, 14, 1))
sketch10.addConstraint(Sketcher.Constraint("Coincident", 14, 2, 15, 1))
sketch10.addConstraint(Sketcher.Constraint("Coincident", 15, 2, 12, 1))
sketch10.addConstraint(Sketcher.Constraint("Coincident", 16, 2, 17, 1))
sketch10.addConstraint(Sketcher.Constraint("Coincident", 17, 2, 18, 1))
sketch10.addConstraint(Sketcher.Constraint("Coincident", 18, 2, 19, 1))
sketch10.addConstraint(Sketcher.Constraint("Coincident", 19, 2, 16, 1))
sketch10.addConstraint(Sketcher.Constraint("Coincident", 20, 2, 21, 1))
sketch10.addConstraint(Sketcher.Constraint("Coincident", 21, 2, 22, 1))
sketch10.addConstraint(Sketcher.Constraint("Coincident", 22, 2, 23, 1))
sketch10.addConstraint(Sketcher.Constraint("Coincident", 23, 2, 20, 1))
sketch10.addConstraint(Sketcher.Constraint("Coincident", 24, 2, 25, 1))
sketch10.addConstraint(Sketcher.Constraint("Coincident", 25, 2, 26, 1))
sketch10.addConstraint(Sketcher.Constraint("Coincident", 26, 2, 27, 1))
sketch10.addConstraint(Sketcher.Constraint("Coincident", 27, 2, 24, 1))
sketch10.addConstraint(Sketcher.Constraint("Coincident", 28, 2, 29, 1))
sketch10.addConstraint(Sketcher.Constraint("Coincident", 29, 2, 30, 1))
sketch10.addConstraint(Sketcher.Constraint("Coincident", 30, 2, 31, 1))
sketch10.addConstraint(Sketcher.Constraint("Coincident", 31, 2, 28, 1))
sketch10.addConstraint(Sketcher.Constraint("Coincident", 32, 2, 33, 1))
sketch10.addConstraint(Sketcher.Constraint("Coincident", 33, 2, 34, 1))
sketch10.addConstraint(Sketcher.Constraint("Coincident", 34, 2, 35, 1))
sketch10.addConstraint(Sketcher.Constraint("Coincident", 35, 2, 32, 1))
sketch10.addConstraint(Sketcher.Constraint("Coincident", 36, 2, 37, 1))
sketch10.addConstraint(Sketcher.Constraint("Coincident", 37, 2, 38, 1))
sketch10.addConstraint(Sketcher.Constraint("Coincident", 38, 2, 39, 1))
sketch10.addConstraint(Sketcher.Constraint("Coincident", 39, 2, 36, 1))
sketch10.addConstraint(Sketcher.Constraint("Coincident", 40, 2, 41, 1))
sketch10.addConstraint(Sketcher.Constraint("Coincident", 41, 2, 42, 1))
sketch10.addConstraint(Sketcher.Constraint("Coincident", 42, 2, 43, 1))
sketch10.addConstraint(Sketcher.Constraint("Coincident", 43, 2, 40, 1))
sketch10.addConstraint(Sketcher.Constraint("Coincident", 44, 2, 45, 1))
sketch10.addConstraint(Sketcher.Constraint("Coincident", 45, 2, 46, 1))
sketch10.addConstraint(Sketcher.Constraint("Coincident", 46, 2, 47, 1))
sketch10.addConstraint(Sketcher.Constraint("Coincident", 47, 2, 44, 1))
sketch10.addConstraint(Sketcher.Constraint("Coincident", 48, 2, 49, 1))
sketch10.addConstraint(Sketcher.Constraint("Coincident", 49, 2, 50, 1))
sketch10.addConstraint(Sketcher.Constraint("Coincident", 50, 2, 51, 1))
sketch10.addConstraint(Sketcher.Constraint("Coincident", 51, 2, 48, 1))
sketch10.addConstraint(Sketcher.Constraint("Coincident", 52, 2, 53, 1))
sketch10.addConstraint(Sketcher.Constraint("Coincident", 53, 2, 54, 1))
sketch10.addConstraint(Sketcher.Constraint("Coincident", 54, 2, 55, 1))
sketch10.addConstraint(Sketcher.Constraint("Coincident", 55, 2, 52, 1))
sketch10.addConstraint(Sketcher.Constraint("Vertical", 0))
sketch10.addConstraint(Sketcher.Constraint("Horizontal", 1))
sketch10.addConstraint(Sketcher.Constraint("Vertical", 2))
sketch10.addConstraint(Sketcher.Constraint("Horizontal", 3))
sketch10.addConstraint(Sketcher.Constraint("Vertical", 4))
sketch10.addConstraint(Sketcher.Constraint("Horizontal", 5))
sketch10.addConstraint(Sketcher.Constraint("Vertical", 6))
sketch10.addConstraint(Sketcher.Constraint("Horizontal", 7))
sketch10.addConstraint(Sketcher.Constraint("Vertical", 8))
sketch10.addConstraint(Sketcher.Constraint("Horizontal", 9))
sketch10.addConstraint(Sketcher.Constraint("Vertical", 10))
sketch10.addConstraint(Sketcher.Constraint("Horizontal", 11))
sketch10.addConstraint(Sketcher.Constraint("Vertical", 12))
sketch10.addConstraint(Sketcher.Constraint("Horizontal", 13))
sketch10.addConstraint(Sketcher.Constraint("Vertical", 14))
sketch10.addConstraint(Sketcher.Constraint("Horizontal", 15))
sketch10.addConstraint(Sketcher.Constraint("Vertical", 16))
sketch10.addConstraint(Sketcher.Constraint("Horizontal", 17))
sketch10.addConstraint(Sketcher.Constraint("Vertical", 18))
sketch10.addConstraint(Sketcher.Constraint("Horizontal", 19))
sketch10.addConstraint(Sketcher.Constraint("Vertical", 20))
sketch10.addConstraint(Sketcher.Constraint("Horizontal", 21))
sketch10.addConstraint(Sketcher.Constraint("Vertical", 22))
sketch10.addConstraint(Sketcher.Constraint("Horizontal", 23))
sketch10.addConstraint(Sketcher.Constraint("Vertical", 24))
sketch10.addConstraint(Sketcher.Constraint("Horizontal", 25))
sketch10.addConstraint(Sketcher.Constraint("Vertical", 26))
sketch10.addConstraint(Sketcher.Constraint("Horizontal", 27))
sketch10.addConstraint(Sketcher.Constraint("Vertical", 28))
sketch10.addConstraint(Sketcher.Constraint("Horizontal", 29))
sketch10.addConstraint(Sketcher.Constraint("Vertical", 30))
sketch10.addConstraint(Sketcher.Constraint("Horizontal", 31))
sketch10.addConstraint(Sketcher.Constraint("Vertical", 32))
sketch10.addConstraint(Sketcher.Constraint("Horizontal", 33))
sketch10.addConstraint(Sketcher.Constraint("Vertical", 34))
sketch10.addConstraint(Sketcher.Constraint("Horizontal", 35))
sketch10.addConstraint(Sketcher.Constraint("Vertical", 36))
sketch10.addConstraint(Sketcher.Constraint("Horizontal", 37))
sketch10.addConstraint(Sketcher.Constraint("Vertical", 38))
sketch10.addConstraint(Sketcher.Constraint("Horizontal", 39))
sketch10.addConstraint(Sketcher.Constraint("Vertical", 40))
sketch10.addConstraint(Sketcher.Constraint("Horizontal", 41))
sketch10.addConstraint(Sketcher.Constraint("Vertical", 42))
sketch10.addConstraint(Sketcher.Constraint("Horizontal", 43))
sketch10.addConstraint(Sketcher.Constraint("Vertical", 44))
sketch10.addConstraint(Sketcher.Constraint("Horizontal", 45))
sketch10.addConstraint(Sketcher.Constraint("Vertical", 46))
sketch10.addConstraint(Sketcher.Constraint("Horizontal", 47))
sketch10.addConstraint(Sketcher.Constraint("Vertical", 48))
sketch10.addConstraint(Sketcher.Constraint("Horizontal", 49))
sketch10.addConstraint(Sketcher.Constraint("Vertical", 50))
sketch10.addConstraint(Sketcher.Constraint("Horizontal", 51))
sketch10.addConstraint(Sketcher.Constraint("Vertical", 52))
sketch10.addConstraint(Sketcher.Constraint("Horizontal", 53))
sketch10.addConstraint(Sketcher.Constraint("Vertical", 54))
sketch10.addConstraint(Sketcher.Constraint("Horizontal", 55))
sketch10.addConstraint(Sketcher.Constraint("Horizontal", 1, 2, 4, 2))
sketch10.addConstraint(Sketcher.Constraint("Horizontal", 3, 2, 6, 2))
sketch10.addConstraint(Sketcher.Constraint("Horizontal", 5, 2, 8, 2))
sketch10.addConstraint(Sketcher.Constraint("Horizontal", 7, 2, 10, 2))
sketch10.addConstraint(Sketcher.Constraint("Horizontal", 9, 2, 12, 2))
sketch10.addConstraint(Sketcher.Constraint("Horizontal", 11, 2, 14, 2))
sketch10.addConstraint(Sketcher.Constraint("Horizontal", 13, 2, 16, 2))
sketch10.addConstraint(Sketcher.Constraint("Horizontal", 15, 2, 18, 2))
sketch10.addConstraint(Sketcher.Constraint("Horizontal", 17, 2, 20, 2))
sketch10.addConstraint(Sketcher.Constraint("Horizontal", 19, 2, 22, 2))
sketch10.addConstraint(Sketcher.Constraint("Horizontal", 21, 2, 24, 2))
sketch10.addConstraint(Sketcher.Constraint("Horizontal", 23, 2, 26, 2))
sketch10.addConstraint(Sketcher.Constraint("Horizontal", 29, 2, 32, 2))
sketch10.addConstraint(Sketcher.Constraint("Horizontal", 31, 2, 34, 2))
sketch10.addConstraint(Sketcher.Constraint("Horizontal", 33, 2, 36, 2))
sketch10.addConstraint(Sketcher.Constraint("Horizontal", 35, 2, 38, 2))
sketch10.addConstraint(Sketcher.Constraint("Horizontal", 37, 2, 40, 2))
sketch10.addConstraint(Sketcher.Constraint("Horizontal", 39, 2, 42, 2))
sketch10.addConstraint(Sketcher.Constraint("Horizontal", 41, 2, 44, 2))
sketch10.addConstraint(Sketcher.Constraint("Horizontal", 43, 2, 46, 2))
sketch10.addConstraint(Sketcher.Constraint("Horizontal", 45, 2, 48, 2))
sketch10.addConstraint(Sketcher.Constraint("Horizontal", 47, 2, 50, 2))
sketch10.addConstraint(Sketcher.Constraint("Horizontal", 25, 2, 52, 2))
sketch10.addConstraint(Sketcher.Constraint("Horizontal", 27, 2, 54, 2))
sketch10.addConstraint(Sketcher.Constraint("Vertical", 3, 2, 28, 2))
sketch10.addConstraint(Sketcher.Constraint("Vertical", 2, 2, 29, 2))
sketch10.addConstraint(Sketcher.Constraint("Vertical", 7, 2, 32, 2))
sketch10.addConstraint(Sketcher.Constraint("Vertical", 6, 2, 33, 2))
sketch10.addConstraint(Sketcher.Constraint("Vertical", 11, 2, 36, 2))
sketch10.addConstraint(Sketcher.Constraint("Vertical", 10, 2, 37, 2))
sketch10.addConstraint(Sketcher.Constraint("Vertical", 15, 2, 40, 2))
sketch10.addConstraint(Sketcher.Constraint("Vertical", 14, 2, 41, 2))
sketch10.addConstraint(Sketcher.Constraint("Vertical", 19, 2, 44, 2))
sketch10.addConstraint(Sketcher.Constraint("Vertical", 18, 2, 45, 2))
sketch10.addConstraint(Sketcher.Constraint("Vertical", 23, 2, 48, 2))
sketch10.addConstraint(Sketcher.Constraint("Vertical", 22, 2, 49, 2))
sketch10.addConstraint(Sketcher.Constraint("Equal", 3, 5))
sketch10.addConstraint(Sketcher.Constraint("Equal", 7, 9))
sketch10.addConstraint(Sketcher.Constraint("Equal", 11, 13))
sketch10.addConstraint(Sketcher.Constraint("Equal", 15, 17))
sketch10.addConstraint(Sketcher.Constraint("Equal", 19, 21))
sketch10.addConstraint(Sketcher.Constraint("Equal", 23, 25))
sketch10.addConstraint(Sketcher.Constraint("Equal", 51, 53))
sketch10.addConstraint(Sketcher.Constraint("Equal", 26, 28))
sketch10.addConstraint(Sketcher.Constraint("DistanceX", 52, 2, -1, 1, Q("40 mm")))
sketch10.addConstraint(Sketcher.Constraint("DistanceY", 0, 1, 0, 2, Q("5.45 mm")))
sketch10.addConstraint(Sketcher.Constraint("DistanceX", 1, 1, 1, 2, Q("5.334 mm")))
sketch10.addConstraint(Sketcher.Constraint("DistanceX", 0, 2, -1, 1, Q("29.33 mm")))
sketch10.addConstraint(Sketcher.Constraint("DistanceY", -1, 1, 0, 2, Q("8.18 mm")))
sketch10.addConstraint(Sketcher.Constraint("DistanceX", 4, 2, -1, 1, Q("18.66 mm")))
sketch10.addConstraint(Sketcher.Constraint("DistanceX", 8, 2, -1, 1, Q("7.99 mm")))
sketch10.addConstraint(Sketcher.Constraint("DistanceX", -1, 1, 12, 2, Q("2.68 mm")))
sketch10.addConstraint(Sketcher.Constraint("DistanceX", -1, 1, 16, 2, Q("13.35 mm")))
sketch10.addConstraint(Sketcher.Constraint("DistanceX", -1, 1, 20, 2, Q("24.02 mm")))
sketch10.addConstraint(Sketcher.Constraint("DistanceX", -1, 1, 24, 2, Q("34.69 mm")))
sketch10.addConstraint(Sketcher.Constraint("DistanceY", -1, 1, 28, 2, Q("19.09 mm")))
pocket8 = doc.addObject("PartDesign::Pocket", "Pocket007")
body.addObject(pocket8)
pocket8.Profile = sketch10
pocket8.Type = "ThroughAll"
pocket8.Reversed = True

doc.recompute()
